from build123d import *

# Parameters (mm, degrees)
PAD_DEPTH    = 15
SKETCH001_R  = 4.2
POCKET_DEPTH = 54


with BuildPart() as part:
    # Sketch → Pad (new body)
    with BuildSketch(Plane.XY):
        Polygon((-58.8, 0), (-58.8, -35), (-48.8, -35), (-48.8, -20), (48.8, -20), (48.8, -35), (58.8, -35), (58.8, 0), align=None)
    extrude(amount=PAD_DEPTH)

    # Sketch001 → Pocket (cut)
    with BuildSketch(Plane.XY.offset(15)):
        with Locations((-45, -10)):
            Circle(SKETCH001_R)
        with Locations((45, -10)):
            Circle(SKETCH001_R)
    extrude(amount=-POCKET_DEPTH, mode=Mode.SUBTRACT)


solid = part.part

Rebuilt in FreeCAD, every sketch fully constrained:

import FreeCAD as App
import Part
import Sketcher

V = App.Vector


def add_polygon(sketch, points):
    """Adds a closed chain of lines whose ends are joined by coincident constraints."""
    first, n = sketch.GeometryCount, len(points)
    for a, b in zip(points, points[1:] + points[:1]):
        sketch.addGeometry(Part.LineSegment(App.Vector(*a, 0), App.Vector(*b, 0)), False)
    for i in range(n):
        sketch.addConstraint(Sketcher.Constraint("Coincident", first + i, 2, first + (i + 1) % n, 1))

doc = App.newDocument("Part")
body = doc.addObject("PartDesign::Body", "Body")

# Sketch on XY plane
sketch1 = doc.addObject("Sketcher::SketchObject", "Sketch")
body.addObject(sketch1)
sketch1.AttachmentSupport = (doc.XY_Plane, [""])
sketch1.MapMode = "FlatFace"
add_polygon(sketch1, [(-58.8, 0), (-58.8, -35), (-48.8, -35), (-48.8, -20), (48.8, -20), (48.8, -35), (58.8, -35), (58.8, 0)])  # lines 0-7
sketch1.addConstraint([
    Sketcher.Constraint("Vertical", 0),
    Sketcher.Constraint("Horizontal", 1),
    Sketcher.Constraint("Vertical", 2),
    Sketcher.Constraint("Horizontal", 3),
    Sketcher.Constraint("Vertical", 4),
    Sketcher.Constraint("Horizontal", 5),
    Sketcher.Constraint("Vertical", 6),
    Sketcher.Constraint("Horizontal", 7),
    Sketcher.Constraint("Symmetric", 6, 2, 7, 2, -1, 1),
    Sketcher.Constraint("Symmetric", 1, 2, 4, 2, -2),
    Sketcher.Constraint("DistanceX", 1, 1, 1, 2, 10.0),
    Sketcher.Constraint("DistanceY", 0, 2, 0, 1, 35.0),
    Sketcher.Constraint("DistanceY", 2, 1, 2, 2, 15.0),
    Sketcher.Constraint("DistanceX", 3, 1, 3, 2, 97.6),
])
pad1 = doc.addObject("PartDesign::Pad", "Pad")
body.addObject(pad1)
pad1.Profile = sketch1
pad1.Length = 15

# Sketch on XY plane
sketch2 = doc.addObject("Sketcher::SketchObject", "Sketch001")
body.addObject(sketch2)
sketch2.AttachmentSupport = (doc.XY_Plane, [""])
sketch2.MapMode = "FlatFace"
sketch2.AttachmentOffset = App.Placement(V(0, 0, 15), App.Rotation())
sketch2.addGeometry([
    Part.Circle(V(-45, -10, 0), V(0, 0, 1), 4.2),
    Part.Circle(V(45, -10, 0), V(0, 0, 1), 4.2),
], False)
sketch2.addConstraint([
    Sketcher.Constraint("Equal", 0, 1),
    Sketcher.Constraint("Symmetric", 0, 3, 1, 3, -2),
    Sketcher.Constraint("Diameter", 0, 8.4),
    Sketcher.Constraint("DistanceX", 0, 3, -1, 1, 45.0),
    Sketcher.Constraint("DistanceY", 0, 3, -1, 1, 10.0),
])
pocket1 = doc.addObject("PartDesign::Pocket", "Pocket")
body.addObject(pocket1)
pocket1.Profile = sketch2
pocket1.Length = 54

doc.recompute()
